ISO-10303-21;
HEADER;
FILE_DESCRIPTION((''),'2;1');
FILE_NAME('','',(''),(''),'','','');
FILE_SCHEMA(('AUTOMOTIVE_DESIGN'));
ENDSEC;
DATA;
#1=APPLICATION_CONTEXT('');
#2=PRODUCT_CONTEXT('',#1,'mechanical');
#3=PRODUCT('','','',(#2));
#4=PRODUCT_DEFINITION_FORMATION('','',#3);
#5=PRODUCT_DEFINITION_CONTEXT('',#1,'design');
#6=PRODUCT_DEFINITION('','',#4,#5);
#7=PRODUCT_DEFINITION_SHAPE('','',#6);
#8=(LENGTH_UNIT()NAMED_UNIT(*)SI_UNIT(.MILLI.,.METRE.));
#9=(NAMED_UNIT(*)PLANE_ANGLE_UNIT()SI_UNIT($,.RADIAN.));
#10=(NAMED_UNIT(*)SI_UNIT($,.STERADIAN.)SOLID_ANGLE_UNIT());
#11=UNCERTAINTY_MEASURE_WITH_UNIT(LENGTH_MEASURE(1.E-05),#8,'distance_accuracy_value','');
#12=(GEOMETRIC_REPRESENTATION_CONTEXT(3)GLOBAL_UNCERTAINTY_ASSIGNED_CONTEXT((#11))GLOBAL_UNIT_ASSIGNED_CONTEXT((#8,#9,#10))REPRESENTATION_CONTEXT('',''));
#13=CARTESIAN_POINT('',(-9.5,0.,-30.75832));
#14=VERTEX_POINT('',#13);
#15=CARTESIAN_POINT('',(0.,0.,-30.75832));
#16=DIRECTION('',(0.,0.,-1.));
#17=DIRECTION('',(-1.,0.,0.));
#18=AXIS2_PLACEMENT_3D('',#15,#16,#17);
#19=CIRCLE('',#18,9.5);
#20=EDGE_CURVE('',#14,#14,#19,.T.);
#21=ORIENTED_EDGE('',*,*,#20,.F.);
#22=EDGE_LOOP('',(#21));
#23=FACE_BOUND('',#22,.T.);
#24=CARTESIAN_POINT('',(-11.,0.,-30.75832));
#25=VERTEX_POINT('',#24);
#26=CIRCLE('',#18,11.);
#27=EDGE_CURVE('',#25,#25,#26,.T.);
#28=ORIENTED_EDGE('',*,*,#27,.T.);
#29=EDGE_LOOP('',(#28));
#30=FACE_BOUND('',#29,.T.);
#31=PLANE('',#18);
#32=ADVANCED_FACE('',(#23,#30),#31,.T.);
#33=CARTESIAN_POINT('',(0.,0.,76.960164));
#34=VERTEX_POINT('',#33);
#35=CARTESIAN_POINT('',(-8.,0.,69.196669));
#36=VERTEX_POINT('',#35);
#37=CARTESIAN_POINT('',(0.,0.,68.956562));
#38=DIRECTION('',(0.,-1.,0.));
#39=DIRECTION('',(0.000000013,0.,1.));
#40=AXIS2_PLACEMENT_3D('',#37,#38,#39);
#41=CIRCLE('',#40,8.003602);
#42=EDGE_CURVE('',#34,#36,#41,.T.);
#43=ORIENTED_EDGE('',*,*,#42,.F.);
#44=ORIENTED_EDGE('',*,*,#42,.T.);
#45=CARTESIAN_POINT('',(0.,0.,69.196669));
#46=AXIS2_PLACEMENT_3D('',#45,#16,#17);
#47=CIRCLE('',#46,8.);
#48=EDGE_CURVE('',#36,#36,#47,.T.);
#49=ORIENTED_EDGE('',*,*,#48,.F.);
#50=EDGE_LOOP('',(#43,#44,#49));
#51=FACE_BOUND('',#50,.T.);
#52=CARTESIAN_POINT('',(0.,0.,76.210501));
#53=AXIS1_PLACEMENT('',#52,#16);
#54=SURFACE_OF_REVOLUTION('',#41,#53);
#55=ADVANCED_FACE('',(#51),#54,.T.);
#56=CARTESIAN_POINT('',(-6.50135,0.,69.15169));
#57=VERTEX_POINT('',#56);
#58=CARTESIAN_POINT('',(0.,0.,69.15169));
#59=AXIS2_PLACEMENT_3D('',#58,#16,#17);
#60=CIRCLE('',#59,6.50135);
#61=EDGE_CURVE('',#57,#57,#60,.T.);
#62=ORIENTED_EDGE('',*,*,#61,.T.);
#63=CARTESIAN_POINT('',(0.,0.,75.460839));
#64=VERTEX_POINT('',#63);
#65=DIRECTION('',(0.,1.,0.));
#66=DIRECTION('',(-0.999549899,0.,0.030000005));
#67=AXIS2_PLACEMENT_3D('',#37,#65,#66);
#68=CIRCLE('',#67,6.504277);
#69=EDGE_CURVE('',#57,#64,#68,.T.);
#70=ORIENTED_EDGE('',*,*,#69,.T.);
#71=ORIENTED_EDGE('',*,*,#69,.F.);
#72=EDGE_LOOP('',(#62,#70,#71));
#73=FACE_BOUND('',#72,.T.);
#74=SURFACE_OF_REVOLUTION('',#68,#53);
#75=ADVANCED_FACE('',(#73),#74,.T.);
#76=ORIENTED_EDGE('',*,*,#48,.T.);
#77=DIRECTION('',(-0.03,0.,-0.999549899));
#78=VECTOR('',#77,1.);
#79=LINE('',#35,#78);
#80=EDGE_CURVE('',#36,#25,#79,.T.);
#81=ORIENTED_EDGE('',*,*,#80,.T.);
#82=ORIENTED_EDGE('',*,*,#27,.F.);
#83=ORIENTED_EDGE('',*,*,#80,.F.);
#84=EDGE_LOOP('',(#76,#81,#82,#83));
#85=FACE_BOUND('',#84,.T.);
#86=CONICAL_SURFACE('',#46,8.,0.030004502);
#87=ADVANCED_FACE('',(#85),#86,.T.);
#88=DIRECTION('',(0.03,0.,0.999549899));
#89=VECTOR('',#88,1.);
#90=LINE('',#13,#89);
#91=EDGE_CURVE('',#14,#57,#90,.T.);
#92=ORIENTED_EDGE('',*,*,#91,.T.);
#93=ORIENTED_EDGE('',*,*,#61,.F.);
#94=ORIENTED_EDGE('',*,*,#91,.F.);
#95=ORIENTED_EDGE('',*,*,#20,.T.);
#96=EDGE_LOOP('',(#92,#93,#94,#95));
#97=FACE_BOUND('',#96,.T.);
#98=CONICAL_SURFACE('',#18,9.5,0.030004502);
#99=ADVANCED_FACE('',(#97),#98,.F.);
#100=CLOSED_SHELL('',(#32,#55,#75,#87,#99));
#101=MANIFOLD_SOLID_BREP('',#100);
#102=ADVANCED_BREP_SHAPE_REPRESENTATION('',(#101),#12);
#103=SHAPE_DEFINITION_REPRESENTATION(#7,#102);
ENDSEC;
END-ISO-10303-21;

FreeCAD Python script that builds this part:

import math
import FreeCAD as App
import Part
import Sketcher
from FreeCAD import Vector

doc = App.newDocument("Part")
body = doc.addObject("PartDesign::Body", "Body")

# Sketch on XZ plane
sketch1 = body.newObject("Sketcher::SketchObject", "Sketch")
sketch1.AttachmentSupport = (doc.getObject("XZ_Plane"), [""])
sketch1.MapMode = "FlatFace"
sketch1.addGeometry([
    Part.ArcOfCircle(Part.Circle(Vector(0, 69, 0), Vector(0, 0, 1), 8), math.radians(90), math.radians(178)),  # 0
    Part.LineSegment(Vector(-8, 69.2, 0), Vector(-11, -30.8, 0)),  # 1
    Part.LineSegment(Vector(-11, -30.8, 0), Vector(-9.5, -30.8, 0)),  # 2
    Part.LineSegment(Vector(-9.5, -30.8, 0), Vector(-6.5, 69.2, 0)),  # 3
    Part.ArcOfCircle(Part.Circle(Vector(0, 69, 0), Vector(0, 0, 1), 6.5), math.radians(90), math.radians(178)),  # 4
    Part.LineSegment(Vector(0, 75.5, 0), Vector(0, 77, 0)),  # 5
], False)
sketch1.addConstraint([
    Sketcher.Constraint("Tangent", 0, 2, 1, 1),
    Sketcher.Constraint("Coincident", 1, 2, 2, 1),
    Sketcher.Constraint("Coincident", 2, 2, 3, 1),
    Sketcher.Constraint("Tangent", 3, 2, 4, 2),
    Sketcher.Constraint("Coincident", 4, 1, 5, 1),
    Sketcher.Constraint("Coincident", 5, 2, 0, 1),
    Sketcher.Constraint("Horizontal", 2),
    Sketcher.Constraint("Vertical", 5),
    Sketcher.Constraint("Coincident", 4, 3, 0, 3),
    Sketcher.Constraint("PointOnObject", 0, 3, -2),
    Sketcher.Constraint("PointOnObject", 4, 1, -2),
    Sketcher.Constraint("Parallel", 1, 3),
    Sketcher.Constraint("Distance", 1, 99.999999),
    Sketcher.Constraint("DistanceX", 2, 1, 2, 2, 1.5),
    Sketcher.Constraint("DistanceX", 0, 2, -1, 1, 8.0),
    Sketcher.Constraint("DistanceX", 1, 2, -1, 1, 11.0),
    Sketcher.Constraint("DistanceY", -1, 1, 0, 3, 68.956562),
])
revolution = body.newObject("PartDesign::Revolution", "Revolution")
revolution.Profile = sketch1
revolution.ReferenceAxis = (sketch1, ["V_Axis"])
revolution.Angle = 360

doc.recompute()
